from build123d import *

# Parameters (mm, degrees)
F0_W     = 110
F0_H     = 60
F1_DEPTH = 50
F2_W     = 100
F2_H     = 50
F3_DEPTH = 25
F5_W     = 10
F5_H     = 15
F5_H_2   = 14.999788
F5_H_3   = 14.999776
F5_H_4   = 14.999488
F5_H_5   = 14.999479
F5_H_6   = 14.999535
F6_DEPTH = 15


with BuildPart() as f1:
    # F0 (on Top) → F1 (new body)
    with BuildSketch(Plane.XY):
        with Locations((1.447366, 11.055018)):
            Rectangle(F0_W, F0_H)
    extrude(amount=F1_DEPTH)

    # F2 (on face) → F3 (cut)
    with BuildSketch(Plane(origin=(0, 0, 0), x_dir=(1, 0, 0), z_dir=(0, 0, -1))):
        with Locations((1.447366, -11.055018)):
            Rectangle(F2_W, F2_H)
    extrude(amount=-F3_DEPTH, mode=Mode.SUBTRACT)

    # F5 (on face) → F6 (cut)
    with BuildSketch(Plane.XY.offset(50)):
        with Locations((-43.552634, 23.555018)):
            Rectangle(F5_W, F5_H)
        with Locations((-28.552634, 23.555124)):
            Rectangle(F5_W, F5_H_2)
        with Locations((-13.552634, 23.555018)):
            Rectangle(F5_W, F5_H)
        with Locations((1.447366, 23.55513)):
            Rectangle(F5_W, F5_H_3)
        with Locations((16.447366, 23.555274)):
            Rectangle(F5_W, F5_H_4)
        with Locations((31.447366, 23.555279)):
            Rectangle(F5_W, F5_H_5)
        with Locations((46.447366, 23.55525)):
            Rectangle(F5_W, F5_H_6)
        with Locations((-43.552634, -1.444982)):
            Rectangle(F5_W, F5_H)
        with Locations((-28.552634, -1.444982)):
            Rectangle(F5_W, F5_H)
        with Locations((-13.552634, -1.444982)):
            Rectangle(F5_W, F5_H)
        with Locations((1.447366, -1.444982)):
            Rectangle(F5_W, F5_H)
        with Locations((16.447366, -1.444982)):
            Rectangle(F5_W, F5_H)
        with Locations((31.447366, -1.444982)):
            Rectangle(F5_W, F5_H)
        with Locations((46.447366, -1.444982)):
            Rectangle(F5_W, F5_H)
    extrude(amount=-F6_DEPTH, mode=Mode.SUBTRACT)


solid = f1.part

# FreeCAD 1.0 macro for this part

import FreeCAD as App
import Part
import Sketcher
Q = App.Units.Quantity


def add_polygon(sketch, points):
    """Adds a closed chain of lines whose ends are joined by coincident constraints."""
    first, n = sketch.GeometryCount, len(points)
    for a, b in zip(points, points[1:] + points[:1]):
        sketch.addGeometry(Part.LineSegment(App.Vector(*a, 0), App.Vector(*b, 0)), False)
    for i in range(n):
        sketch.addConstraint(Sketcher.Constraint("Coincident", first + i, 2, first + (i + 1) % n, 1))

doc = App.newDocument("Part")
body = doc.addObject("PartDesign::Body", "Body")

# Sketch on XY plane
sketch1 = body.newObject("Sketcher::SketchObject", "Sketch")
sketch1.AttachmentSupport = (doc.getObject("XY_Plane"), [""])
sketch1.MapMode = "FlatFace"
add_polygon(sketch1, [(-53.552634, 41.055018), (-53.552634, -18.944982), (56.447366, -18.944982), (56.447366, 41.055018)])  # lines 0-3
sketch1.addConstraint([
    Sketcher.Constraint("Vertical", 0),
    Sketcher.Constraint("Horizontal", 1),
    Sketcher.Constraint("Vertical", 2),
    Sketcher.Constraint("Horizontal", 3),
    Sketcher.Constraint("DistanceX", 1, 1, 1, 2, Q("110 mm")),
    Sketcher.Constraint("DistanceY", 0, 2, 0, 1, Q("60 mm")),
    Sketcher.Constraint("DistanceY", 0, 2, -1, 1, Q("18.944982 mm")),
    Sketcher.Constraint("DistanceX", 0, 2, -1, 1, Q("53.552634 mm")),
])
pad1 = body.newObject("PartDesign::Pad", "Pad")
pad1.Profile = sketch1
pad1.Length = 50

# Sketch on XY plane
sketch2 = body.newObject("Sketcher::SketchObject", "Sketch001")
sketch2.AttachmentSupport = (doc.getObject("XY_Plane"), [""])
sketch2.MapMode = "FlatFace"
add_polygon(sketch2, [(-48.552634, -13.944982), (-48.552634, 36.055018), (51.447366, 36.055018), (51.447366, -13.944982)])  # lines 0-3
sketch2.addConstraint([
    Sketcher.Constraint("Vertical", 0),
    Sketcher.Constraint("Horizontal", 1),
    Sketcher.Constraint("Vertical", 2),
    Sketcher.Constraint("Horizontal", 3),
    Sketcher.Constraint("DistanceX", 1, 1, 1, 2, Q("100 mm")),
    Sketcher.Constraint("DistanceY", 0, 1, 0, 2, Q("50 mm")),
    Sketcher.Constraint("DistanceX", 0, 2, -1, 1, Q("48.552634 mm")),
    Sketcher.Constraint("DistanceY", -1, 1, 0, 2, Q("36.055018 mm")),
])
pocket1 = body.newObject("PartDesign::Pocket", "Pocket")
pocket1.Profile = sketch2
pocket1.Length = 25
pocket1.Reversed = True

# Sketch on XY plane
sketch3 = body.newObject("Sketcher::SketchObject", "Sketch002")
sketch3.AttachmentSupport = (doc.getObject("XY_Plane"), [""])
sketch3.MapMode = "FlatFace"
sketch3.AttachmentOffset = App.Placement(App.Vector(0, 0, 50), App.Rotation())
add_polygon(sketch3, [(-48.552634, 31.055018), (-48.552634, 16.055018), (-38.552634, 16.055018), (-38.552634, 31.055018)])  # lines 0-3
add_polygon(sketch3, [(-33.552634, 31.055018), (-33.552634, 16.05523), (-23.552634, 16.05523), (-23.552634, 31.055018)])  # lines 4-7
add_polygon(sketch3, [(-18.552634, 31.055018), (-18.552634, 16.055018), (-8.552634, 16.055018), (-8.552634, 31.055018)])  # lines 8-11
add_polygon(sketch3, [(-3.552634, 31.055018), (-3.552634, 16.055242), (6.447366, 16.055242), (6.447366, 31.055018)])  # lines 12-15
add_polygon(sketch3, [(11.447366, 31.055018), (11.447366, 16.05553), (21.447366, 16.05553), (21.447366, 31.055018)])  # lines 16-19
add_polygon(sketch3, [(26.447366, 31.055018), (26.447366, 16.055539), (36.447366, 16.055539), (36.447366, 31.055018)])  # lines 20-23
add_polygon(sketch3, [(41.447366, 31.055018), (41.447366, 16.055483), (51.447366, 16.055483), (51.447366, 31.055018)])  # lines 24-27
add_polygon(sketch3, [(-48.552634, 6.055018), (-48.552634, -8.944982), (-38.552634, -8.944982), (-38.552634, 6.055018)])  # lines 28-31
add_polygon(sketch3, [(-33.552634, 6.055018), (-33.552634, -8.944982), (-23.552634, -8.944982), (-23.552634, 6.055018)])  # lines 32-35
add_polygon(sketch3, [(-18.552634, 6.055018), (-18.552634, -8.944982), (-8.552634, -8.944982), (-8.552634, 6.055018)])  # lines 36-39
add_polygon(sketch3, [(-3.552634, 6.055018), (-3.552634, -8.944982), (6.447366, -8.944982), (6.447366, 6.055018)])  # lines 40-43
add_polygon(sketch3, [(11.447366, 6.055018), (11.447366, -8.944982), (21.447366, -8.944982), (21.447366, 6.055018)])  # lines 44-47
add_polygon(sketch3, [(26.447366, 6.055018), (26.447366, -8.944982), (36.447366, -8.944982), (36.447366, 6.055018)])  # lines 48-51
add_polygon(sketch3, [(41.447366, 6.055018), (41.447366, -8.944982), (51.447366, -8.944982), (51.447366, 6.055018)])  # lines 52-55
sketch3.addConstraint([
    Sketcher.Constraint("Vertical", 0),
    Sketcher.Constraint("Horizontal", 1),
    Sketcher.Constraint("Vertical", 2),
    Sketcher.Constraint("Horizontal", 3),
    Sketcher.Constraint("Vertical", 4),
    Sketcher.Constraint("Horizontal", 5),
    Sketcher.Constraint("Vertical", 6),
    Sketcher.Constraint("Horizontal", 7),
    Sketcher.Constraint("Vertical", 8),
    Sketcher.Constraint("Horizontal", 9),
    Sketcher.Constraint("Vertical", 10),
    Sketcher.Constraint("Horizontal", 11),
    Sketcher.Constraint("Vertical", 12),
    Sketcher.Constraint("Horizontal", 13),
    Sketcher.Constraint("Vertical", 14),
    Sketcher.Constraint("Horizontal", 15),
    Sketcher.Constraint("Vertical", 16),
    Sketcher.Constraint("Horizontal", 17),
    Sketcher.Constraint("Vertical", 18),
    Sketcher.Constraint("Horizontal", 19),
    Sketcher.Constraint("Vertical", 20),
    Sketcher.Constraint("Horizontal", 21),
    Sketcher.Constraint("Vertical", 22),
    Sketcher.Constraint("Horizontal", 23),
    Sketcher.Constraint("Vertical", 24),
    Sketcher.Constraint("Horizontal", 25),
    Sketcher.Constraint("Vertical", 26),
    Sketcher.Constraint("Horizontal", 27),
    Sketcher.Constraint("Vertical", 28),
    Sketcher.Constraint("Horizontal", 29),
    Sketcher.Constraint("Vertical", 30),
    Sketcher.Constraint("Horizontal", 31),
    Sketcher.Constraint("Vertical", 32),
    Sketcher.Constraint("Horizontal", 33),
    Sketcher.Constraint("Vertical", 34),
    Sketcher.Constraint("Horizontal", 35),
    Sketcher.Constraint("Vertical", 36),
    Sketcher.Constraint("Horizontal", 37),
    Sketcher.Constraint("Vertical", 38),
    Sketcher.Constraint("Horizontal", 39),
    Sketcher.Constraint("Vertical", 40),
    Sketcher.Constraint("Horizontal", 41),
    Sketcher.Constraint("Vertical", 42),
    Sketcher.Constraint("Horizontal", 43),
    Sketcher.Constraint("Vertical", 44),
    Sketcher.Constraint("Horizontal", 45),
    Sketcher.Constraint("Vertical", 46),
    Sketcher.Constraint("Horizontal", 47),
    Sketcher.Constraint("Vertical", 48),
    Sketcher.Constraint("Horizontal", 49),
    Sketcher.Constraint("Vertical", 50),
    Sketcher.Constraint("Horizontal", 51),
    Sketcher.Constraint("Vertical", 52),
    Sketcher.Constraint("Horizontal", 53),
    Sketcher.Constraint("Vertical", 54),
    Sketcher.Constraint("Horizontal", 55),
    Sketcher.Constraint("Horizontal", 3, 2, 6, 2),
    Sketcher.Constraint("Horizontal", 1, 2, 8, 2),
    Sketcher.Constraint("Horizontal", 7, 2, 10, 2),
    Sketcher.Constraint("Horizontal", 11, 2, 14, 2),
    Sketcher.Constraint("Horizontal", 15, 2, 18, 2),
    Sketcher.Constraint("Horizontal", 19, 2, 22, 2),
    Sketcher.Constraint("Horizontal", 23, 2, 26, 2),
    Sketcher.Constraint("Horizontal", 29, 2, 32, 2),
    Sketcher.Constraint("Horizontal", 31, 2, 34, 2),
    Sketcher.Constraint("Horizontal", 33, 2, 36, 2),
    Sketcher.Constraint("Horizontal", 35, 2, 38, 2),
    Sketcher.Constraint("Horizontal", 37, 2, 40, 2),
    Sketcher.Constraint("Horizontal", 39, 2, 42, 2),
    Sketcher.Constraint("Horizontal", 41, 2, 44, 2),
    Sketcher.Constraint("Horizontal", 43, 2, 46, 2),
    Sketcher.Constraint("Horizontal", 45, 2, 48, 2),
    Sketcher.Constraint("Horizontal", 47, 2, 50, 2),
    Sketcher.Constraint("Horizontal", 49, 2, 52, 2),
    Sketcher.Constraint("Horizontal", 51, 2, 54, 2),
    Sketcher.Constraint("Vertical", 3, 2, 28, 2),
    Sketcher.Constraint("Vertical", 2, 2, 29, 2),
    Sketcher.Constraint("Vertical", 7, 2, 32, 2),
    Sketcher.Constraint("Vertical", 6, 2, 33, 2),
    Sketcher.Constraint("Vertical", 11, 2, 36, 2),
    Sketcher.Constraint("Vertical", 10, 2, 37, 2),
    Sketcher.Constraint("Vertical", 15, 2, 40, 2),
    Sketcher.Constraint("Vertical", 14, 2, 41, 2),
    Sketcher.Constraint("Vertical", 19, 2, 44, 2),
    Sketcher.Constraint("Vertical", 18, 2, 45, 2),
    Sketcher.Constraint("Vertical", 23, 2, 48, 2),
    Sketcher.Constraint("Vertical", 22, 2, 49, 2),
    Sketcher.Constraint("Vertical", 27, 2, 52, 2),
    Sketcher.Constraint("Vertical", 26, 2, 53, 2),
    Sketcher.Constraint("Equal", 3, 5),
    Sketcher.Constraint("Equal", 7, 9),
    Sketcher.Constraint("Equal", 11, 13),
    Sketcher.Constraint("Equal", 15, 17),
    Sketcher.Constraint("Equal", 19, 21),
    Sketcher.Constraint("Equal", 23, 25),
    Sketcher.Constraint("Equal", 10, 28),
    Sketcher.Constraint("DistanceX", 1, 1, 1, 2, Q("10 mm")),
    Sketcher.Constraint("DistanceY", 0, 2, 0, 1, Q("15 mm")),
    Sketcher.Constraint("DistanceX", 1, 2, 4, 2, Q("5 mm")),
    Sketcher.Constraint("DistanceX", 5, 2, 8, 2, Q("5 mm")),
    Sketcher.Constraint("DistanceX", 9, 2, 12, 2, Q("5 mm")),
    Sketcher.Constraint("DistanceX", 13, 2, 16, 2, Q("5 mm")),
    Sketcher.Constraint("DistanceX", 17, 2, 20, 2, Q("5 mm")),
    Sketcher.Constraint("DistanceX", 21, 2, 24, 2, Q("5 mm")),
    Sketcher.Constraint("DistanceY", 28, 2, 0, 2, Q("25 mm")),
    Sketcher.Constraint("DistanceY", 20, 2, 20, 1, Q("14.999479 mm")),
    Sketcher.Constraint("DistanceY", 4, 2, 4, 1, Q("14.999788 mm")),
    Sketcher.Constraint("DistanceY", 12, 2, 12, 1, Q("14.999776 mm")),
    Sketcher.Constraint("DistanceY", 16, 2, 16, 1, Q("14.999488 mm")),
    Sketcher.Constraint("DistanceY", 24, 2, 24, 1, Q("14.999535 mm")),
    Sketcher.Constraint("DistanceY", -1, 1, 0, 2, Q("16.055018 mm")),
    Sketcher.Constraint("DistanceX", 0, 2, -1, 1, Q("48.552634 mm")),
])
pocket2 = body.newObject("PartDesign::Pocket", "Pocket001")
pocket2.Profile = sketch3
pocket2.Length = 15

doc.recompute()
